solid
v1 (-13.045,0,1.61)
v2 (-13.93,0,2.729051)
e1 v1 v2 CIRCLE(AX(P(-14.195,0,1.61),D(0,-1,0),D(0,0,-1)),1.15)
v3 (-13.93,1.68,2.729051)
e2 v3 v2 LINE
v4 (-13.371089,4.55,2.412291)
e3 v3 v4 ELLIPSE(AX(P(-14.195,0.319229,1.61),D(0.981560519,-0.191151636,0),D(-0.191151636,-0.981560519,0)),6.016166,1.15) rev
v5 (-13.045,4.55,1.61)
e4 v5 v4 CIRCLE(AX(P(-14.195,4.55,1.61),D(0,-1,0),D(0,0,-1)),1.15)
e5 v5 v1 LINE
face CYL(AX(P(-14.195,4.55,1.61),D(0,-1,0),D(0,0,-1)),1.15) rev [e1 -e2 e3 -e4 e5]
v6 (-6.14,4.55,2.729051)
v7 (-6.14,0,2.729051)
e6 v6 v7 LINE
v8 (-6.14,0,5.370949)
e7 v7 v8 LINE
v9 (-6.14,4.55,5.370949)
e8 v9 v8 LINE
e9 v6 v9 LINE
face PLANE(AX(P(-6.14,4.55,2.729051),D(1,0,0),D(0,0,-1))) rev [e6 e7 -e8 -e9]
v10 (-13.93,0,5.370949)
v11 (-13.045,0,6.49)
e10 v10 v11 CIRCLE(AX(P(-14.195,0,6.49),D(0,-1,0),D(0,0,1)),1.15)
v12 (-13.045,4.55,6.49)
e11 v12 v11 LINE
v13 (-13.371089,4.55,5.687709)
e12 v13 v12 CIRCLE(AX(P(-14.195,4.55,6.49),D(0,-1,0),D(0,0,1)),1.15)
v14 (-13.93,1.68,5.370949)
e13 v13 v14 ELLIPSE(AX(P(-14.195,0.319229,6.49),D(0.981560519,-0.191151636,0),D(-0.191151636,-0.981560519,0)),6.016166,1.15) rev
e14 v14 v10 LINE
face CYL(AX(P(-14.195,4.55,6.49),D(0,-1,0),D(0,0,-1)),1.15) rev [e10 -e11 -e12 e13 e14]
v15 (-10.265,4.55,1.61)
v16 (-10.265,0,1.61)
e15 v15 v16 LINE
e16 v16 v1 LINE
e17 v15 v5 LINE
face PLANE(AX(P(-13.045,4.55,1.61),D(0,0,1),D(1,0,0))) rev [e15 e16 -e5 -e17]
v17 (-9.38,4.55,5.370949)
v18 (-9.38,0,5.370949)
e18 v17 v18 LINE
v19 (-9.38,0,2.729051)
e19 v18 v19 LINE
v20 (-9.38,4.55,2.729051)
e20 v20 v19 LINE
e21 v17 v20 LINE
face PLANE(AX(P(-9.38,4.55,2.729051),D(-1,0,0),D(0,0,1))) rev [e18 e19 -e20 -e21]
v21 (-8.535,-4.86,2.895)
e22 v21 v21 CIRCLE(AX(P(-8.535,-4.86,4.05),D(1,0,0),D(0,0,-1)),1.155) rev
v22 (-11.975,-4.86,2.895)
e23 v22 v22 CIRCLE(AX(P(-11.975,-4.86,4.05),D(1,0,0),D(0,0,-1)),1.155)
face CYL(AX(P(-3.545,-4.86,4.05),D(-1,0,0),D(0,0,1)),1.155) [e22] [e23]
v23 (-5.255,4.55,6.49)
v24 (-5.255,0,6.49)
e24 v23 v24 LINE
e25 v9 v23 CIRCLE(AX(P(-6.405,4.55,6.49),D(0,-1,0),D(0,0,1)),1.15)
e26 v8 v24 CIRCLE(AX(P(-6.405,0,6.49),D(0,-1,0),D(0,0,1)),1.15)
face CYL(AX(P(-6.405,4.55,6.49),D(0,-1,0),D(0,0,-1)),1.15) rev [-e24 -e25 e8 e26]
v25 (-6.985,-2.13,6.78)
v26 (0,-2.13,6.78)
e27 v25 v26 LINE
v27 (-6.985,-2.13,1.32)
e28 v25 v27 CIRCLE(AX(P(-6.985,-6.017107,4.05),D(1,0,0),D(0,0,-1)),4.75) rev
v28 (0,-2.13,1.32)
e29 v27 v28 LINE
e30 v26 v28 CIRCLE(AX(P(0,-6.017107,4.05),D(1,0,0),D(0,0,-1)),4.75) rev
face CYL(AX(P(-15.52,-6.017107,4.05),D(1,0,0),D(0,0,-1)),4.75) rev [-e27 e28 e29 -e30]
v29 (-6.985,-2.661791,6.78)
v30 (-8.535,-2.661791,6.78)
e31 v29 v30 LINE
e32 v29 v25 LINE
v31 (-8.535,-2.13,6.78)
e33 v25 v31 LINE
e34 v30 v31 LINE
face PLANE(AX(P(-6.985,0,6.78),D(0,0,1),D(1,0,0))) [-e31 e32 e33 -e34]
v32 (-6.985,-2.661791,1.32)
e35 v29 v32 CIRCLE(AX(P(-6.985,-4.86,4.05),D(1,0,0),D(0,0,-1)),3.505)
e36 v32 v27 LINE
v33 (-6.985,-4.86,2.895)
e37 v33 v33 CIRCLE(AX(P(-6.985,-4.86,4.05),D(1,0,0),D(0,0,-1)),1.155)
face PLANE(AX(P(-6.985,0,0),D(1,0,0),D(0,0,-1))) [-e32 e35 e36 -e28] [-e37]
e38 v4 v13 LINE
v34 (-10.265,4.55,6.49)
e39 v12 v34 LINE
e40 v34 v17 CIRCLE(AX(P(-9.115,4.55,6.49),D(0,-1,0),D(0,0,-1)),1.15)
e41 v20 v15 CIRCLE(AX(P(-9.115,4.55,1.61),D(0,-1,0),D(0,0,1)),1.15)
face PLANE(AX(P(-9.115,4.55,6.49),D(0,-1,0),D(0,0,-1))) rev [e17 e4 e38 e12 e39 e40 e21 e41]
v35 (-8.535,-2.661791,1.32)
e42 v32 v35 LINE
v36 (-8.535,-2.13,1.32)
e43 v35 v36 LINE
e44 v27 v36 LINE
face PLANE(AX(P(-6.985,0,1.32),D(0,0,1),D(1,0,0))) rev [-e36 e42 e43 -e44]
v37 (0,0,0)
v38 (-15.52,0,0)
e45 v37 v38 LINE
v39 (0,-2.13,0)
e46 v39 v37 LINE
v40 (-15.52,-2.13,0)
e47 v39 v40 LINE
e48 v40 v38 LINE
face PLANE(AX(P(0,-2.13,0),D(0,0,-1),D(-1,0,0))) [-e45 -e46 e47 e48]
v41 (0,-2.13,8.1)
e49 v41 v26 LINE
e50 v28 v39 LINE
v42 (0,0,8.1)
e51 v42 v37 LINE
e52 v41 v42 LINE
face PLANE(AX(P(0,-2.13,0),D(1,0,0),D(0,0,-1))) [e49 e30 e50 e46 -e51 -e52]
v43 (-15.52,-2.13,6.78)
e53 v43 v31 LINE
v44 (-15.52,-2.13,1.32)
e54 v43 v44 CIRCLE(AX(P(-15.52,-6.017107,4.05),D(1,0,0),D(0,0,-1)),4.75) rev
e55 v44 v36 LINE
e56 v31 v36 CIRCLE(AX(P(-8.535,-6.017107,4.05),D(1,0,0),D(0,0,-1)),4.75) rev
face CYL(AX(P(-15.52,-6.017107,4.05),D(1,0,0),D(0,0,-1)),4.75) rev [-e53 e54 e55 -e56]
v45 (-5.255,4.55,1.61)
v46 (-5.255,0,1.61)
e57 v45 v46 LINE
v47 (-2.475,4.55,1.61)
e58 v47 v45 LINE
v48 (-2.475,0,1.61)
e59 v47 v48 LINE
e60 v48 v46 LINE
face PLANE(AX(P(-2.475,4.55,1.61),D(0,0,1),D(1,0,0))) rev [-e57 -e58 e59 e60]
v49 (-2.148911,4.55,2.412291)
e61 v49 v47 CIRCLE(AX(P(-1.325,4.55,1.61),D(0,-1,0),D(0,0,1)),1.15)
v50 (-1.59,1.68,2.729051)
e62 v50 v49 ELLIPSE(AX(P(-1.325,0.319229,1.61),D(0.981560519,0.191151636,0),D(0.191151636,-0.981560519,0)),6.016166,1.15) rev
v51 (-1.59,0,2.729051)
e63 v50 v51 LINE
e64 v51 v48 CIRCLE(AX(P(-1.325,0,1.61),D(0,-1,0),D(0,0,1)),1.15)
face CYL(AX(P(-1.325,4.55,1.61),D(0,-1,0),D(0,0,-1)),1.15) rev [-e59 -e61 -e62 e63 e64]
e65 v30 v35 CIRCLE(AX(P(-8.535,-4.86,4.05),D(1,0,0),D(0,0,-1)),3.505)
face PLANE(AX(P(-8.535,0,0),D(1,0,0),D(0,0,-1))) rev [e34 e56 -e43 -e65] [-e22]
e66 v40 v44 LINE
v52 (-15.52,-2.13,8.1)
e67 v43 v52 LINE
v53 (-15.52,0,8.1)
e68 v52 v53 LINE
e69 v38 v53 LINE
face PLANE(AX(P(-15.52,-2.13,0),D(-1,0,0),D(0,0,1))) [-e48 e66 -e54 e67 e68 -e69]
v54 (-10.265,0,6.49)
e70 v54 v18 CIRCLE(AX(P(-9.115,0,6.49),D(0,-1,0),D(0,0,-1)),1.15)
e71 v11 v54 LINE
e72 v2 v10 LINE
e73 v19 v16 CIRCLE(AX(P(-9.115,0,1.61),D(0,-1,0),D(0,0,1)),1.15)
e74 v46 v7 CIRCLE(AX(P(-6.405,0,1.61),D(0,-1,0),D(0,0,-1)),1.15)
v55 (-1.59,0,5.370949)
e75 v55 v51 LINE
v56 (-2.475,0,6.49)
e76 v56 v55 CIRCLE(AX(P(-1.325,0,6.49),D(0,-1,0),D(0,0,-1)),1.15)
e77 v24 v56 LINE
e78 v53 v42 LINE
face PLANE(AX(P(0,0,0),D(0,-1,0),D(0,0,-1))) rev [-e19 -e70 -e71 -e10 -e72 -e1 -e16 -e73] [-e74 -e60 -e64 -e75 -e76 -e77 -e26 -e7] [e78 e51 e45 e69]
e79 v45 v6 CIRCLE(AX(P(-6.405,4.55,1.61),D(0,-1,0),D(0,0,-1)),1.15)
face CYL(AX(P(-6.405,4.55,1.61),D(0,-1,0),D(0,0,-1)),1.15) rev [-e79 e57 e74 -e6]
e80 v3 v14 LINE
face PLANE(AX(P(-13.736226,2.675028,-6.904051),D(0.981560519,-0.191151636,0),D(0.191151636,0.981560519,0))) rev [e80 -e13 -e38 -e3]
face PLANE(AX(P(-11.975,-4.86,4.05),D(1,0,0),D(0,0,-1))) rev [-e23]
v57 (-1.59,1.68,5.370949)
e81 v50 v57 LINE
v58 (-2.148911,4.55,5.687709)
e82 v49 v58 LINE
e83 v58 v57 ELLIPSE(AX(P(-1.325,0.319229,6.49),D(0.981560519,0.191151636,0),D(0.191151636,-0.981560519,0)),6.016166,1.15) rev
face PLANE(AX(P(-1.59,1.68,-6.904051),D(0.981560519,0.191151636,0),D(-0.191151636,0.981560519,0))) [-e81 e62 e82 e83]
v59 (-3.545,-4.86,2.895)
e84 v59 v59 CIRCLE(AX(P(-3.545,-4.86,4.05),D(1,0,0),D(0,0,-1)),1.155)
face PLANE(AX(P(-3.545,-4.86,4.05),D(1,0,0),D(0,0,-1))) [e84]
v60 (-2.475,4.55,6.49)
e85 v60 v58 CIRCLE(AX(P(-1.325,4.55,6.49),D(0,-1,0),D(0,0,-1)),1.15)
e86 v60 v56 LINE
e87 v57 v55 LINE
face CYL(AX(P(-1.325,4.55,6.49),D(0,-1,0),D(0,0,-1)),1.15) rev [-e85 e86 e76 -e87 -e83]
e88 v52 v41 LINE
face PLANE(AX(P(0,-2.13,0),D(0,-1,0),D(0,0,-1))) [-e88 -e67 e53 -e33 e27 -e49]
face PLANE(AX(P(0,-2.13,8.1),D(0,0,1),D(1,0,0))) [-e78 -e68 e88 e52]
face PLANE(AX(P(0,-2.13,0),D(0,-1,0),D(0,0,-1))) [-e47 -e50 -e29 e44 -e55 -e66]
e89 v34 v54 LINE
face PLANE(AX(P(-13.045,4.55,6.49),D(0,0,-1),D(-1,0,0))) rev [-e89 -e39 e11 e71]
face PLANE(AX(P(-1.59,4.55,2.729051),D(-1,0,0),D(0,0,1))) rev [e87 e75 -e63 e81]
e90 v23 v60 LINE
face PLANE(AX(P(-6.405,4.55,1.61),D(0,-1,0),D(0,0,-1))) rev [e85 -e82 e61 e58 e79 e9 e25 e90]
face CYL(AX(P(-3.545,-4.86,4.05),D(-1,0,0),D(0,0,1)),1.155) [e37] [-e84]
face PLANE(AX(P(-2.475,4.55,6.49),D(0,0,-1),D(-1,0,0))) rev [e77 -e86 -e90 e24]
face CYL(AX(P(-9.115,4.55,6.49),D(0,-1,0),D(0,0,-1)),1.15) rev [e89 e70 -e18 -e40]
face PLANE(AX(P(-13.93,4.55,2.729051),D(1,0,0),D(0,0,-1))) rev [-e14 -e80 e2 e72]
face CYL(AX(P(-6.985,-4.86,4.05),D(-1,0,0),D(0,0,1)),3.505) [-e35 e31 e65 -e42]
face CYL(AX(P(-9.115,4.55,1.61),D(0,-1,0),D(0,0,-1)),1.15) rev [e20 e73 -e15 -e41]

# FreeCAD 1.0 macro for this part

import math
import FreeCAD as App
import Part
import Sketcher
from FreeCAD import Vector
Q = App.Units.Quantity


def add_polygon(sketch, points):
    """Adds a closed chain of lines whose ends are joined by coincident constraints."""
    first, n = sketch.GeometryCount, len(points)
    for a, b in zip(points, points[1:] + points[:1]):
        sketch.addGeometry(Part.LineSegment(App.Vector(*a, 0), App.Vector(*b, 0)), False)
    for i in range(n):
        sketch.addConstraint(Sketcher.Constraint("Coincident", first + i, 2, first + (i + 1) % n, 1))

doc = App.newDocument("Part")
body = doc.addObject("PartDesign::Body", "Body")

# Sketch on XZ plane
sketch1 = body.newObject("Sketcher::SketchObject", "Sketch")
sketch1.AttachmentSupport = (doc.getObject("XZ_Plane"), [""])
sketch1.MapMode = "FlatFace"
add_polygon(sketch1, [(-16, 0), (-16, 8), (0, 8), (0, 0)])  # lines 0-3
sketch1.addConstraint([
    Sketcher.Constraint("Vertical", 0),
    Sketcher.Constraint("Horizontal", 1),
    Sketcher.Constraint("Vertical", 2),
    Sketcher.Constraint("Horizontal", 3),
    Sketcher.Constraint("Coincident", 2, 2, -1, 1),
    Sketcher.Constraint("DistanceY", 0, 1, 0, 2, Q("8.1 mm")),
    Sketcher.Constraint("DistanceX", 1, 1, 1, 2, Q("15.52 mm")),
])
pad1 = body.newObject("PartDesign::Pad", "Pad")
pad1.Profile = sketch1
pad1.Length = 2.13

# Sketch on XZ plane
sketch2 = body.newObject("Sketcher::SketchObject", "Sketch001")
sketch2.AttachmentSupport = (doc.getObject("XZ_Plane"), [""])
sketch2.MapMode = "FlatFace"
sketch2.addGeometry([
    Part.LineSegment(Vector(-10.3, 1.6, 0), Vector(-13, 1.6, 0)),  # 0
    Part.ArcOfCircle(Part.Circle(Vector(-14.2, 1.6, 0), Vector(0, 0, 1), 1.1), math.radians(0), math.radians(77)),  # 1
    Part.LineSegment(Vector(-13.9, 2.7, 0), Vector(-13.9, 5.4, 0)),  # 2
    Part.ArcOfCircle(Part.Circle(Vector(-14.2, 6.5, 0), Vector(0, 0, 1), 1.1), math.radians(-77), math.radians(0)),  # 3
    Part.LineSegment(Vector(-13, 6.5, 0), Vector(-10.3, 6.5, 0)),  # 4
    Part.ArcOfCircle(Part.Circle(Vector(-9.1, 6.5, 0), Vector(0, 0, 1), 1.1), math.radians(180), math.radians(257)),  # 5
    Part.LineSegment(Vector(-9.4, 5.4, 0), Vector(-9.4, 2.7, 0)),  # 6
    Part.ArcOfCircle(Part.Circle(Vector(-9.1, 1.6, 0), Vector(0, 0, 1), 1.1), math.radians(103), math.radians(180)),  # 7
    Part.LineSegment(Vector(-6.1, 2.7, 0), Vector(-6.1, 5.4, 0)),  # 8
    Part.ArcOfCircle(Part.Circle(Vector(-6.4, 6.5, 0), Vector(0, 0, 1), 1.1), math.radians(-77), math.radians(0)),  # 9
    Part.LineSegment(Vector(-5.3, 6.5, 0), Vector(-2.5, 6.5, 0)),  # 10
    Part.ArcOfCircle(Part.Circle(Vector(-1.3, 6.5, 0), Vector(0, 0, 1), 1.1), math.radians(180), math.radians(257)),  # 11
    Part.LineSegment(Vector(-1.6, 5.4, 0), Vector(-1.6, 2.7, 0)),  # 12
    Part.ArcOfCircle(Part.Circle(Vector(-1.3, 1.6, 0), Vector(0, 0, 1), 1.1), math.radians(103), math.radians(180)),  # 13
    Part.LineSegment(Vector(-2.5, 1.6, 0), Vector(-5.3, 1.6, 0)),  # 14
    Part.ArcOfCircle(Part.Circle(Vector(-6.4, 1.6, 0), Vector(0, 0, 1), 1.1), math.radians(0), math.radians(77)),  # 15
], False)
sketch2.addConstraint([
    Sketcher.Constraint("Coincident", 0, 2, 1, 1),
    Sketcher.Constraint("Coincident", 1, 2, 2, 1),
    Sketcher.Constraint("Coincident", 2, 2, 3, 1),
    Sketcher.Constraint("Coincident", 3, 2, 4, 1),
    Sketcher.Constraint("Coincident", 4, 2, 5, 1),
    Sketcher.Constraint("Coincident", 5, 2, 6, 1),
    Sketcher.Constraint("Coincident", 6, 2, 7, 1),
    Sketcher.Constraint("Coincident", 7, 2, 0, 1),
    Sketcher.Constraint("Coincident", 8, 2, 9, 1),
    Sketcher.Constraint("Coincident", 9, 2, 10, 1),
    Sketcher.Constraint("Coincident", 10, 2, 11, 1),
    Sketcher.Constraint("Coincident", 11, 2, 12, 1),
    Sketcher.Constraint("Coincident", 12, 2, 13, 1),
    Sketcher.Constraint("Coincident", 13, 2, 14, 1),
    Sketcher.Constraint("Coincident", 14, 2, 15, 1),
    Sketcher.Constraint("Coincident", 15, 2, 8, 1),
    Sketcher.Constraint("Horizontal", 0),
    Sketcher.Constraint("Vertical", 2),
    Sketcher.Constraint("Horizontal", 4),
    Sketcher.Constraint("Vertical", 6),
    Sketcher.Constraint("Vertical", 8),
    Sketcher.Constraint("Horizontal", 10),
    Sketcher.Constraint("Vertical", 12),
    Sketcher.Constraint("Horizontal", 14),
    Sketcher.Constraint("Equal", 1, 3),
    Sketcher.Constraint("Equal", 3, 5),
    Sketcher.Constraint("Equal", 5, 7),
    Sketcher.Constraint("Equal", 7, 9),
    Sketcher.Constraint("Equal", 9, 11),
    Sketcher.Constraint("Equal", 11, 13),
    Sketcher.Constraint("Equal", 13, 15),
    Sketcher.Constraint("Horizontal", 3, 3, 5, 3),
    Sketcher.Constraint("Horizontal", 1, 3, 7, 3),
    Sketcher.Constraint("Horizontal", 5, 3, 9, 3),
    Sketcher.Constraint("Horizontal", 9, 3, 11, 3),
    Sketcher.Constraint("Horizontal", 7, 3, 13, 3),
    Sketcher.Constraint("Horizontal", 13, 3, 15, 3),
    Sketcher.Constraint("Horizontal", 15, 3, 0, 2),
    Sketcher.Constraint("Horizontal", 11, 3, 3, 2),
    Sketcher.Constraint("Horizontal", 2, 2, 5, 2),
    Sketcher.Constraint("Horizontal", 1, 2, 6, 2),
    Sketcher.Constraint("Horizontal", 5, 2, 8, 2),
    Sketcher.Constraint("Horizontal", 4, 2, 9, 2),
    Sketcher.Constraint("Horizontal", 8, 2, 11, 2),
    Sketcher.Constraint("Horizontal", 6, 2, 12, 2),
    Sketcher.Constraint("Horizontal", 7, 2, 13, 2),
    Sketcher.Constraint("Horizontal", 12, 2, 15, 2),
    Sketcher.Constraint("Vertical", 1, 3, 3, 3),
    Sketcher.Constraint("Equal", 4, 10),
    Sketcher.Constraint("Radius", 1, Q("1.15 mm")),
    Sketcher.Constraint("DistanceX", 0, 2, 0, 1, Q("2.78 mm")),
    Sketcher.Constraint("DistanceY", -1, 1, 1, 3, Q("1.61 mm")),
    Sketcher.Constraint("DistanceY", -1, 1, 3, 3, Q("6.49 mm")),
    Sketcher.Constraint("DistanceX", 1, 2, -1, 1, Q("13.93 mm")),
    Sketcher.Constraint("DistanceX", 5, 2, -1, 1, Q("9.38 mm")),
    Sketcher.Constraint("DistanceX", 8, 2, -1, 1, Q("6.14 mm")),
])
pad2 = body.newObject("PartDesign::Pad", "Pad001")
pad2.Profile = sketch2
pad2.Length = 4.55
pad2.Reversed = True

# Sketch on XY plane
sketch3 = body.newObject("Sketcher::SketchObject", "Sketch002")
sketch3.AttachmentSupport = (doc.getObject("XY_Plane"), [""])
sketch3.MapMode = "FlatFace"
sketch3.AttachmentOffset = App.Placement(Vector(0, 0, 5.370949), App.Rotation())
add_polygon(sketch3, [(-1.6, 1.7), (-1.6, 4.5), (-2.1, 4.5)])  # lines 0-2
sketch3.addConstraint([
    Sketcher.Constraint("Vertical", 0),
    Sketcher.Constraint("Horizontal", 1),
    Sketcher.Constraint("DistanceY", 0, 1, 0, 2, Q("2.87 mm")),
    Sketcher.Constraint("Angle", 2, Q("-78.98 deg")),
    Sketcher.Constraint("DistanceX", 0, 2, -1, 1, Q("1.59 mm")),
    Sketcher.Constraint("DistanceY", -1, 1, 0, 2, Q("4.55 mm")),
])
pocket1 = body.newObject("PartDesign::Pocket", "Pocket")
pocket1.Profile = sketch3
pocket1.Length = 24.55
pocket1.Midplane = True

# Sketch on XY plane
sketch4 = body.newObject("Sketcher::SketchObject", "Sketch003")
sketch4.AttachmentSupport = (doc.getObject("XY_Plane"), [""])
sketch4.MapMode = "FlatFace"
sketch4.AttachmentOffset = App.Placement(Vector(0, 0, 5.370949), App.Rotation())
add_polygon(sketch4, [(-13.4, 4.5), (-13.9, 4.5), (-13.9, 1.7)])  # lines 0-2
sketch4.addConstraint([
    Sketcher.Constraint("Horizontal", 0),
    Sketcher.Constraint("Vertical", 1),
    Sketcher.Constraint("DistanceY", 1, 2, 1, 1, Q("2.87 mm")),
    Sketcher.Constraint("Angle", 2, Q("78.98 deg")),
    Sketcher.Constraint("DistanceX", 0, 2, -1, 1, Q("13.93 mm")),
    Sketcher.Constraint("DistanceY", -1, 1, 0, 2, Q("4.55 mm")),
])
pocket2 = body.newObject("PartDesign::Pocket", "Pocket001")
pocket2.Profile = sketch4
pocket2.Length = 24.55
pocket2.Midplane = True

# Sketch on YZ plane
sketch5 = body.newObject("Sketcher::SketchObject", "Sketch004")
sketch5.AttachmentSupport = (doc.getObject("YZ_Plane"), [""])
sketch5.MapMode = "FlatFace"
sketch5.addGeometry([
    Part.ArcOfCircle(Part.Circle(Vector(-6, 4, 0), Vector(0, 0, 1), 4.7), math.radians(-35), math.radians(35)),
    Part.LineSegment(Vector(-2.1, 6.8, 0), Vector(-2.1, 1.3, 0)),
], False)
sketch5.addConstraint([
    Sketcher.Constraint("Coincident", 0, 1, 1, 2),
    Sketcher.Constraint("Coincident", 1, 1, 0, 2),
    Sketcher.Constraint("Vertical", 1),
    Sketcher.Constraint("Radius", 0, Q("4.75 mm")),
    Sketcher.Constraint("DistanceY", 1, 2, 1, 1, Q("5.46 mm")),
    Sketcher.Constraint("DistanceY", -1, 1, 0, 3, Q("4.05 mm")),
    Sketcher.Constraint("DistanceX", 0, 1, -1, 1, Q("2.13 mm")),
])
pocket3 = body.newObject("PartDesign::Pocket", "Pocket002")
pocket3.Profile = sketch5
pocket3.Type = "ThroughAll"

# Sketch on YZ plane
sketch6 = body.newObject("Sketcher::SketchObject", "Sketch005")
sketch6.AttachmentSupport = (doc.getObject("YZ_Plane"), [""])
sketch6.MapMode = "FlatFace"
sketch6.AttachmentOffset = App.Placement(Vector(0, 0, -7.76), App.Rotation())
sketch6.addGeometry([
    Part.LineSegment(Vector(-2.1, 6.8, 0), Vector(-2.7, 6.8, 0)),  # 0
    Part.ArcOfCircle(Part.Circle(Vector(-4.9, 4, 0), Vector(0, 0, 1), 3.5), math.radians(51), math.radians(309)),  # 1
    Part.LineSegment(Vector(-2.7, 1.3, 0), Vector(-2.1, 1.3, 0)),  # 2
    Part.ArcOfCircle(Part.Circle(Vector(-6, 4, 0), Vector(0, 0, 1), 4.7), math.radians(-35), math.radians(35)),  # 3
    Part.Circle(Vector(-4.9, 4, 0), Vector(0, 0, 1), 1.2),  # 4
], False)
sketch6.addConstraint([
    Sketcher.Constraint("Coincident", 0, 2, 1, 1),
    Sketcher.Constraint("Coincident", 1, 2, 2, 1),
    Sketcher.Constraint("Coincident", 2, 2, 3, 1),
    Sketcher.Constraint("Coincident", 3, 2, 0, 1),
    Sketcher.Constraint("Horizontal", 0),
    Sketcher.Constraint("Horizontal", 2),
    Sketcher.Constraint("Coincident", 4, 3, 1, 3),
    Sketcher.Constraint("Horizontal", 1, 3, 3, 3),
    Sketcher.Constraint("Vertical", 0, 2, 1, 2),
    Sketcher.Constraint("Diameter", 4, Q("2.31 mm")),
    Sketcher.Constraint("Radius", 3, Q("4.75 mm")),
    Sketcher.Constraint("Radius", 1, Q("3.505 mm")),
    Sketcher.Constraint("DistanceX", 1, 3, -1, 1, Q("4.86 mm")),
    Sketcher.Constraint("DistanceY", -1, 1, 1, 3, Q("4.05 mm")),
    Sketcher.Constraint("DistanceY", -1, 1, 0, 2, Q("6.78 mm")),
    Sketcher.Constraint("DistanceX", 2, 2, -1, 1, Q("2.13 mm")),
])
pad3 = body.newObject("PartDesign::Pad", "Pad002")
pad3.Profile = sketch6
pad3.Length = 1.55
pad3.Midplane = True

# Sketch on YZ plane
sketch7 = body.newObject("Sketcher::SketchObject", "Sketch006")
sketch7.AttachmentSupport = (doc.getObject("YZ_Plane"), [""])
sketch7.MapMode = "FlatFace"
sketch7.AttachmentOffset = App.Placement(Vector(0, 0, -7.76), App.Rotation())
sketch7.addGeometry(Part.Circle(Vector(-4.9, 4, 0), Vector(0, 0, 1), 1.2), False)
sketch7.addConstraint([
    Sketcher.Constraint("Diameter", 0, Q("2.31 mm")),
    Sketcher.Constraint("DistanceX", 0, 3, -1, 1, Q("4.86 mm")),
    Sketcher.Constraint("DistanceY", -1, 1, 0, 3, Q("4.05 mm")),
])
pad4 = body.newObject("PartDesign::Pad", "Pad003")
pad4.Profile = sketch7
pad4.Length = 8.43
pad4.Midplane = True

doc.recompute()
